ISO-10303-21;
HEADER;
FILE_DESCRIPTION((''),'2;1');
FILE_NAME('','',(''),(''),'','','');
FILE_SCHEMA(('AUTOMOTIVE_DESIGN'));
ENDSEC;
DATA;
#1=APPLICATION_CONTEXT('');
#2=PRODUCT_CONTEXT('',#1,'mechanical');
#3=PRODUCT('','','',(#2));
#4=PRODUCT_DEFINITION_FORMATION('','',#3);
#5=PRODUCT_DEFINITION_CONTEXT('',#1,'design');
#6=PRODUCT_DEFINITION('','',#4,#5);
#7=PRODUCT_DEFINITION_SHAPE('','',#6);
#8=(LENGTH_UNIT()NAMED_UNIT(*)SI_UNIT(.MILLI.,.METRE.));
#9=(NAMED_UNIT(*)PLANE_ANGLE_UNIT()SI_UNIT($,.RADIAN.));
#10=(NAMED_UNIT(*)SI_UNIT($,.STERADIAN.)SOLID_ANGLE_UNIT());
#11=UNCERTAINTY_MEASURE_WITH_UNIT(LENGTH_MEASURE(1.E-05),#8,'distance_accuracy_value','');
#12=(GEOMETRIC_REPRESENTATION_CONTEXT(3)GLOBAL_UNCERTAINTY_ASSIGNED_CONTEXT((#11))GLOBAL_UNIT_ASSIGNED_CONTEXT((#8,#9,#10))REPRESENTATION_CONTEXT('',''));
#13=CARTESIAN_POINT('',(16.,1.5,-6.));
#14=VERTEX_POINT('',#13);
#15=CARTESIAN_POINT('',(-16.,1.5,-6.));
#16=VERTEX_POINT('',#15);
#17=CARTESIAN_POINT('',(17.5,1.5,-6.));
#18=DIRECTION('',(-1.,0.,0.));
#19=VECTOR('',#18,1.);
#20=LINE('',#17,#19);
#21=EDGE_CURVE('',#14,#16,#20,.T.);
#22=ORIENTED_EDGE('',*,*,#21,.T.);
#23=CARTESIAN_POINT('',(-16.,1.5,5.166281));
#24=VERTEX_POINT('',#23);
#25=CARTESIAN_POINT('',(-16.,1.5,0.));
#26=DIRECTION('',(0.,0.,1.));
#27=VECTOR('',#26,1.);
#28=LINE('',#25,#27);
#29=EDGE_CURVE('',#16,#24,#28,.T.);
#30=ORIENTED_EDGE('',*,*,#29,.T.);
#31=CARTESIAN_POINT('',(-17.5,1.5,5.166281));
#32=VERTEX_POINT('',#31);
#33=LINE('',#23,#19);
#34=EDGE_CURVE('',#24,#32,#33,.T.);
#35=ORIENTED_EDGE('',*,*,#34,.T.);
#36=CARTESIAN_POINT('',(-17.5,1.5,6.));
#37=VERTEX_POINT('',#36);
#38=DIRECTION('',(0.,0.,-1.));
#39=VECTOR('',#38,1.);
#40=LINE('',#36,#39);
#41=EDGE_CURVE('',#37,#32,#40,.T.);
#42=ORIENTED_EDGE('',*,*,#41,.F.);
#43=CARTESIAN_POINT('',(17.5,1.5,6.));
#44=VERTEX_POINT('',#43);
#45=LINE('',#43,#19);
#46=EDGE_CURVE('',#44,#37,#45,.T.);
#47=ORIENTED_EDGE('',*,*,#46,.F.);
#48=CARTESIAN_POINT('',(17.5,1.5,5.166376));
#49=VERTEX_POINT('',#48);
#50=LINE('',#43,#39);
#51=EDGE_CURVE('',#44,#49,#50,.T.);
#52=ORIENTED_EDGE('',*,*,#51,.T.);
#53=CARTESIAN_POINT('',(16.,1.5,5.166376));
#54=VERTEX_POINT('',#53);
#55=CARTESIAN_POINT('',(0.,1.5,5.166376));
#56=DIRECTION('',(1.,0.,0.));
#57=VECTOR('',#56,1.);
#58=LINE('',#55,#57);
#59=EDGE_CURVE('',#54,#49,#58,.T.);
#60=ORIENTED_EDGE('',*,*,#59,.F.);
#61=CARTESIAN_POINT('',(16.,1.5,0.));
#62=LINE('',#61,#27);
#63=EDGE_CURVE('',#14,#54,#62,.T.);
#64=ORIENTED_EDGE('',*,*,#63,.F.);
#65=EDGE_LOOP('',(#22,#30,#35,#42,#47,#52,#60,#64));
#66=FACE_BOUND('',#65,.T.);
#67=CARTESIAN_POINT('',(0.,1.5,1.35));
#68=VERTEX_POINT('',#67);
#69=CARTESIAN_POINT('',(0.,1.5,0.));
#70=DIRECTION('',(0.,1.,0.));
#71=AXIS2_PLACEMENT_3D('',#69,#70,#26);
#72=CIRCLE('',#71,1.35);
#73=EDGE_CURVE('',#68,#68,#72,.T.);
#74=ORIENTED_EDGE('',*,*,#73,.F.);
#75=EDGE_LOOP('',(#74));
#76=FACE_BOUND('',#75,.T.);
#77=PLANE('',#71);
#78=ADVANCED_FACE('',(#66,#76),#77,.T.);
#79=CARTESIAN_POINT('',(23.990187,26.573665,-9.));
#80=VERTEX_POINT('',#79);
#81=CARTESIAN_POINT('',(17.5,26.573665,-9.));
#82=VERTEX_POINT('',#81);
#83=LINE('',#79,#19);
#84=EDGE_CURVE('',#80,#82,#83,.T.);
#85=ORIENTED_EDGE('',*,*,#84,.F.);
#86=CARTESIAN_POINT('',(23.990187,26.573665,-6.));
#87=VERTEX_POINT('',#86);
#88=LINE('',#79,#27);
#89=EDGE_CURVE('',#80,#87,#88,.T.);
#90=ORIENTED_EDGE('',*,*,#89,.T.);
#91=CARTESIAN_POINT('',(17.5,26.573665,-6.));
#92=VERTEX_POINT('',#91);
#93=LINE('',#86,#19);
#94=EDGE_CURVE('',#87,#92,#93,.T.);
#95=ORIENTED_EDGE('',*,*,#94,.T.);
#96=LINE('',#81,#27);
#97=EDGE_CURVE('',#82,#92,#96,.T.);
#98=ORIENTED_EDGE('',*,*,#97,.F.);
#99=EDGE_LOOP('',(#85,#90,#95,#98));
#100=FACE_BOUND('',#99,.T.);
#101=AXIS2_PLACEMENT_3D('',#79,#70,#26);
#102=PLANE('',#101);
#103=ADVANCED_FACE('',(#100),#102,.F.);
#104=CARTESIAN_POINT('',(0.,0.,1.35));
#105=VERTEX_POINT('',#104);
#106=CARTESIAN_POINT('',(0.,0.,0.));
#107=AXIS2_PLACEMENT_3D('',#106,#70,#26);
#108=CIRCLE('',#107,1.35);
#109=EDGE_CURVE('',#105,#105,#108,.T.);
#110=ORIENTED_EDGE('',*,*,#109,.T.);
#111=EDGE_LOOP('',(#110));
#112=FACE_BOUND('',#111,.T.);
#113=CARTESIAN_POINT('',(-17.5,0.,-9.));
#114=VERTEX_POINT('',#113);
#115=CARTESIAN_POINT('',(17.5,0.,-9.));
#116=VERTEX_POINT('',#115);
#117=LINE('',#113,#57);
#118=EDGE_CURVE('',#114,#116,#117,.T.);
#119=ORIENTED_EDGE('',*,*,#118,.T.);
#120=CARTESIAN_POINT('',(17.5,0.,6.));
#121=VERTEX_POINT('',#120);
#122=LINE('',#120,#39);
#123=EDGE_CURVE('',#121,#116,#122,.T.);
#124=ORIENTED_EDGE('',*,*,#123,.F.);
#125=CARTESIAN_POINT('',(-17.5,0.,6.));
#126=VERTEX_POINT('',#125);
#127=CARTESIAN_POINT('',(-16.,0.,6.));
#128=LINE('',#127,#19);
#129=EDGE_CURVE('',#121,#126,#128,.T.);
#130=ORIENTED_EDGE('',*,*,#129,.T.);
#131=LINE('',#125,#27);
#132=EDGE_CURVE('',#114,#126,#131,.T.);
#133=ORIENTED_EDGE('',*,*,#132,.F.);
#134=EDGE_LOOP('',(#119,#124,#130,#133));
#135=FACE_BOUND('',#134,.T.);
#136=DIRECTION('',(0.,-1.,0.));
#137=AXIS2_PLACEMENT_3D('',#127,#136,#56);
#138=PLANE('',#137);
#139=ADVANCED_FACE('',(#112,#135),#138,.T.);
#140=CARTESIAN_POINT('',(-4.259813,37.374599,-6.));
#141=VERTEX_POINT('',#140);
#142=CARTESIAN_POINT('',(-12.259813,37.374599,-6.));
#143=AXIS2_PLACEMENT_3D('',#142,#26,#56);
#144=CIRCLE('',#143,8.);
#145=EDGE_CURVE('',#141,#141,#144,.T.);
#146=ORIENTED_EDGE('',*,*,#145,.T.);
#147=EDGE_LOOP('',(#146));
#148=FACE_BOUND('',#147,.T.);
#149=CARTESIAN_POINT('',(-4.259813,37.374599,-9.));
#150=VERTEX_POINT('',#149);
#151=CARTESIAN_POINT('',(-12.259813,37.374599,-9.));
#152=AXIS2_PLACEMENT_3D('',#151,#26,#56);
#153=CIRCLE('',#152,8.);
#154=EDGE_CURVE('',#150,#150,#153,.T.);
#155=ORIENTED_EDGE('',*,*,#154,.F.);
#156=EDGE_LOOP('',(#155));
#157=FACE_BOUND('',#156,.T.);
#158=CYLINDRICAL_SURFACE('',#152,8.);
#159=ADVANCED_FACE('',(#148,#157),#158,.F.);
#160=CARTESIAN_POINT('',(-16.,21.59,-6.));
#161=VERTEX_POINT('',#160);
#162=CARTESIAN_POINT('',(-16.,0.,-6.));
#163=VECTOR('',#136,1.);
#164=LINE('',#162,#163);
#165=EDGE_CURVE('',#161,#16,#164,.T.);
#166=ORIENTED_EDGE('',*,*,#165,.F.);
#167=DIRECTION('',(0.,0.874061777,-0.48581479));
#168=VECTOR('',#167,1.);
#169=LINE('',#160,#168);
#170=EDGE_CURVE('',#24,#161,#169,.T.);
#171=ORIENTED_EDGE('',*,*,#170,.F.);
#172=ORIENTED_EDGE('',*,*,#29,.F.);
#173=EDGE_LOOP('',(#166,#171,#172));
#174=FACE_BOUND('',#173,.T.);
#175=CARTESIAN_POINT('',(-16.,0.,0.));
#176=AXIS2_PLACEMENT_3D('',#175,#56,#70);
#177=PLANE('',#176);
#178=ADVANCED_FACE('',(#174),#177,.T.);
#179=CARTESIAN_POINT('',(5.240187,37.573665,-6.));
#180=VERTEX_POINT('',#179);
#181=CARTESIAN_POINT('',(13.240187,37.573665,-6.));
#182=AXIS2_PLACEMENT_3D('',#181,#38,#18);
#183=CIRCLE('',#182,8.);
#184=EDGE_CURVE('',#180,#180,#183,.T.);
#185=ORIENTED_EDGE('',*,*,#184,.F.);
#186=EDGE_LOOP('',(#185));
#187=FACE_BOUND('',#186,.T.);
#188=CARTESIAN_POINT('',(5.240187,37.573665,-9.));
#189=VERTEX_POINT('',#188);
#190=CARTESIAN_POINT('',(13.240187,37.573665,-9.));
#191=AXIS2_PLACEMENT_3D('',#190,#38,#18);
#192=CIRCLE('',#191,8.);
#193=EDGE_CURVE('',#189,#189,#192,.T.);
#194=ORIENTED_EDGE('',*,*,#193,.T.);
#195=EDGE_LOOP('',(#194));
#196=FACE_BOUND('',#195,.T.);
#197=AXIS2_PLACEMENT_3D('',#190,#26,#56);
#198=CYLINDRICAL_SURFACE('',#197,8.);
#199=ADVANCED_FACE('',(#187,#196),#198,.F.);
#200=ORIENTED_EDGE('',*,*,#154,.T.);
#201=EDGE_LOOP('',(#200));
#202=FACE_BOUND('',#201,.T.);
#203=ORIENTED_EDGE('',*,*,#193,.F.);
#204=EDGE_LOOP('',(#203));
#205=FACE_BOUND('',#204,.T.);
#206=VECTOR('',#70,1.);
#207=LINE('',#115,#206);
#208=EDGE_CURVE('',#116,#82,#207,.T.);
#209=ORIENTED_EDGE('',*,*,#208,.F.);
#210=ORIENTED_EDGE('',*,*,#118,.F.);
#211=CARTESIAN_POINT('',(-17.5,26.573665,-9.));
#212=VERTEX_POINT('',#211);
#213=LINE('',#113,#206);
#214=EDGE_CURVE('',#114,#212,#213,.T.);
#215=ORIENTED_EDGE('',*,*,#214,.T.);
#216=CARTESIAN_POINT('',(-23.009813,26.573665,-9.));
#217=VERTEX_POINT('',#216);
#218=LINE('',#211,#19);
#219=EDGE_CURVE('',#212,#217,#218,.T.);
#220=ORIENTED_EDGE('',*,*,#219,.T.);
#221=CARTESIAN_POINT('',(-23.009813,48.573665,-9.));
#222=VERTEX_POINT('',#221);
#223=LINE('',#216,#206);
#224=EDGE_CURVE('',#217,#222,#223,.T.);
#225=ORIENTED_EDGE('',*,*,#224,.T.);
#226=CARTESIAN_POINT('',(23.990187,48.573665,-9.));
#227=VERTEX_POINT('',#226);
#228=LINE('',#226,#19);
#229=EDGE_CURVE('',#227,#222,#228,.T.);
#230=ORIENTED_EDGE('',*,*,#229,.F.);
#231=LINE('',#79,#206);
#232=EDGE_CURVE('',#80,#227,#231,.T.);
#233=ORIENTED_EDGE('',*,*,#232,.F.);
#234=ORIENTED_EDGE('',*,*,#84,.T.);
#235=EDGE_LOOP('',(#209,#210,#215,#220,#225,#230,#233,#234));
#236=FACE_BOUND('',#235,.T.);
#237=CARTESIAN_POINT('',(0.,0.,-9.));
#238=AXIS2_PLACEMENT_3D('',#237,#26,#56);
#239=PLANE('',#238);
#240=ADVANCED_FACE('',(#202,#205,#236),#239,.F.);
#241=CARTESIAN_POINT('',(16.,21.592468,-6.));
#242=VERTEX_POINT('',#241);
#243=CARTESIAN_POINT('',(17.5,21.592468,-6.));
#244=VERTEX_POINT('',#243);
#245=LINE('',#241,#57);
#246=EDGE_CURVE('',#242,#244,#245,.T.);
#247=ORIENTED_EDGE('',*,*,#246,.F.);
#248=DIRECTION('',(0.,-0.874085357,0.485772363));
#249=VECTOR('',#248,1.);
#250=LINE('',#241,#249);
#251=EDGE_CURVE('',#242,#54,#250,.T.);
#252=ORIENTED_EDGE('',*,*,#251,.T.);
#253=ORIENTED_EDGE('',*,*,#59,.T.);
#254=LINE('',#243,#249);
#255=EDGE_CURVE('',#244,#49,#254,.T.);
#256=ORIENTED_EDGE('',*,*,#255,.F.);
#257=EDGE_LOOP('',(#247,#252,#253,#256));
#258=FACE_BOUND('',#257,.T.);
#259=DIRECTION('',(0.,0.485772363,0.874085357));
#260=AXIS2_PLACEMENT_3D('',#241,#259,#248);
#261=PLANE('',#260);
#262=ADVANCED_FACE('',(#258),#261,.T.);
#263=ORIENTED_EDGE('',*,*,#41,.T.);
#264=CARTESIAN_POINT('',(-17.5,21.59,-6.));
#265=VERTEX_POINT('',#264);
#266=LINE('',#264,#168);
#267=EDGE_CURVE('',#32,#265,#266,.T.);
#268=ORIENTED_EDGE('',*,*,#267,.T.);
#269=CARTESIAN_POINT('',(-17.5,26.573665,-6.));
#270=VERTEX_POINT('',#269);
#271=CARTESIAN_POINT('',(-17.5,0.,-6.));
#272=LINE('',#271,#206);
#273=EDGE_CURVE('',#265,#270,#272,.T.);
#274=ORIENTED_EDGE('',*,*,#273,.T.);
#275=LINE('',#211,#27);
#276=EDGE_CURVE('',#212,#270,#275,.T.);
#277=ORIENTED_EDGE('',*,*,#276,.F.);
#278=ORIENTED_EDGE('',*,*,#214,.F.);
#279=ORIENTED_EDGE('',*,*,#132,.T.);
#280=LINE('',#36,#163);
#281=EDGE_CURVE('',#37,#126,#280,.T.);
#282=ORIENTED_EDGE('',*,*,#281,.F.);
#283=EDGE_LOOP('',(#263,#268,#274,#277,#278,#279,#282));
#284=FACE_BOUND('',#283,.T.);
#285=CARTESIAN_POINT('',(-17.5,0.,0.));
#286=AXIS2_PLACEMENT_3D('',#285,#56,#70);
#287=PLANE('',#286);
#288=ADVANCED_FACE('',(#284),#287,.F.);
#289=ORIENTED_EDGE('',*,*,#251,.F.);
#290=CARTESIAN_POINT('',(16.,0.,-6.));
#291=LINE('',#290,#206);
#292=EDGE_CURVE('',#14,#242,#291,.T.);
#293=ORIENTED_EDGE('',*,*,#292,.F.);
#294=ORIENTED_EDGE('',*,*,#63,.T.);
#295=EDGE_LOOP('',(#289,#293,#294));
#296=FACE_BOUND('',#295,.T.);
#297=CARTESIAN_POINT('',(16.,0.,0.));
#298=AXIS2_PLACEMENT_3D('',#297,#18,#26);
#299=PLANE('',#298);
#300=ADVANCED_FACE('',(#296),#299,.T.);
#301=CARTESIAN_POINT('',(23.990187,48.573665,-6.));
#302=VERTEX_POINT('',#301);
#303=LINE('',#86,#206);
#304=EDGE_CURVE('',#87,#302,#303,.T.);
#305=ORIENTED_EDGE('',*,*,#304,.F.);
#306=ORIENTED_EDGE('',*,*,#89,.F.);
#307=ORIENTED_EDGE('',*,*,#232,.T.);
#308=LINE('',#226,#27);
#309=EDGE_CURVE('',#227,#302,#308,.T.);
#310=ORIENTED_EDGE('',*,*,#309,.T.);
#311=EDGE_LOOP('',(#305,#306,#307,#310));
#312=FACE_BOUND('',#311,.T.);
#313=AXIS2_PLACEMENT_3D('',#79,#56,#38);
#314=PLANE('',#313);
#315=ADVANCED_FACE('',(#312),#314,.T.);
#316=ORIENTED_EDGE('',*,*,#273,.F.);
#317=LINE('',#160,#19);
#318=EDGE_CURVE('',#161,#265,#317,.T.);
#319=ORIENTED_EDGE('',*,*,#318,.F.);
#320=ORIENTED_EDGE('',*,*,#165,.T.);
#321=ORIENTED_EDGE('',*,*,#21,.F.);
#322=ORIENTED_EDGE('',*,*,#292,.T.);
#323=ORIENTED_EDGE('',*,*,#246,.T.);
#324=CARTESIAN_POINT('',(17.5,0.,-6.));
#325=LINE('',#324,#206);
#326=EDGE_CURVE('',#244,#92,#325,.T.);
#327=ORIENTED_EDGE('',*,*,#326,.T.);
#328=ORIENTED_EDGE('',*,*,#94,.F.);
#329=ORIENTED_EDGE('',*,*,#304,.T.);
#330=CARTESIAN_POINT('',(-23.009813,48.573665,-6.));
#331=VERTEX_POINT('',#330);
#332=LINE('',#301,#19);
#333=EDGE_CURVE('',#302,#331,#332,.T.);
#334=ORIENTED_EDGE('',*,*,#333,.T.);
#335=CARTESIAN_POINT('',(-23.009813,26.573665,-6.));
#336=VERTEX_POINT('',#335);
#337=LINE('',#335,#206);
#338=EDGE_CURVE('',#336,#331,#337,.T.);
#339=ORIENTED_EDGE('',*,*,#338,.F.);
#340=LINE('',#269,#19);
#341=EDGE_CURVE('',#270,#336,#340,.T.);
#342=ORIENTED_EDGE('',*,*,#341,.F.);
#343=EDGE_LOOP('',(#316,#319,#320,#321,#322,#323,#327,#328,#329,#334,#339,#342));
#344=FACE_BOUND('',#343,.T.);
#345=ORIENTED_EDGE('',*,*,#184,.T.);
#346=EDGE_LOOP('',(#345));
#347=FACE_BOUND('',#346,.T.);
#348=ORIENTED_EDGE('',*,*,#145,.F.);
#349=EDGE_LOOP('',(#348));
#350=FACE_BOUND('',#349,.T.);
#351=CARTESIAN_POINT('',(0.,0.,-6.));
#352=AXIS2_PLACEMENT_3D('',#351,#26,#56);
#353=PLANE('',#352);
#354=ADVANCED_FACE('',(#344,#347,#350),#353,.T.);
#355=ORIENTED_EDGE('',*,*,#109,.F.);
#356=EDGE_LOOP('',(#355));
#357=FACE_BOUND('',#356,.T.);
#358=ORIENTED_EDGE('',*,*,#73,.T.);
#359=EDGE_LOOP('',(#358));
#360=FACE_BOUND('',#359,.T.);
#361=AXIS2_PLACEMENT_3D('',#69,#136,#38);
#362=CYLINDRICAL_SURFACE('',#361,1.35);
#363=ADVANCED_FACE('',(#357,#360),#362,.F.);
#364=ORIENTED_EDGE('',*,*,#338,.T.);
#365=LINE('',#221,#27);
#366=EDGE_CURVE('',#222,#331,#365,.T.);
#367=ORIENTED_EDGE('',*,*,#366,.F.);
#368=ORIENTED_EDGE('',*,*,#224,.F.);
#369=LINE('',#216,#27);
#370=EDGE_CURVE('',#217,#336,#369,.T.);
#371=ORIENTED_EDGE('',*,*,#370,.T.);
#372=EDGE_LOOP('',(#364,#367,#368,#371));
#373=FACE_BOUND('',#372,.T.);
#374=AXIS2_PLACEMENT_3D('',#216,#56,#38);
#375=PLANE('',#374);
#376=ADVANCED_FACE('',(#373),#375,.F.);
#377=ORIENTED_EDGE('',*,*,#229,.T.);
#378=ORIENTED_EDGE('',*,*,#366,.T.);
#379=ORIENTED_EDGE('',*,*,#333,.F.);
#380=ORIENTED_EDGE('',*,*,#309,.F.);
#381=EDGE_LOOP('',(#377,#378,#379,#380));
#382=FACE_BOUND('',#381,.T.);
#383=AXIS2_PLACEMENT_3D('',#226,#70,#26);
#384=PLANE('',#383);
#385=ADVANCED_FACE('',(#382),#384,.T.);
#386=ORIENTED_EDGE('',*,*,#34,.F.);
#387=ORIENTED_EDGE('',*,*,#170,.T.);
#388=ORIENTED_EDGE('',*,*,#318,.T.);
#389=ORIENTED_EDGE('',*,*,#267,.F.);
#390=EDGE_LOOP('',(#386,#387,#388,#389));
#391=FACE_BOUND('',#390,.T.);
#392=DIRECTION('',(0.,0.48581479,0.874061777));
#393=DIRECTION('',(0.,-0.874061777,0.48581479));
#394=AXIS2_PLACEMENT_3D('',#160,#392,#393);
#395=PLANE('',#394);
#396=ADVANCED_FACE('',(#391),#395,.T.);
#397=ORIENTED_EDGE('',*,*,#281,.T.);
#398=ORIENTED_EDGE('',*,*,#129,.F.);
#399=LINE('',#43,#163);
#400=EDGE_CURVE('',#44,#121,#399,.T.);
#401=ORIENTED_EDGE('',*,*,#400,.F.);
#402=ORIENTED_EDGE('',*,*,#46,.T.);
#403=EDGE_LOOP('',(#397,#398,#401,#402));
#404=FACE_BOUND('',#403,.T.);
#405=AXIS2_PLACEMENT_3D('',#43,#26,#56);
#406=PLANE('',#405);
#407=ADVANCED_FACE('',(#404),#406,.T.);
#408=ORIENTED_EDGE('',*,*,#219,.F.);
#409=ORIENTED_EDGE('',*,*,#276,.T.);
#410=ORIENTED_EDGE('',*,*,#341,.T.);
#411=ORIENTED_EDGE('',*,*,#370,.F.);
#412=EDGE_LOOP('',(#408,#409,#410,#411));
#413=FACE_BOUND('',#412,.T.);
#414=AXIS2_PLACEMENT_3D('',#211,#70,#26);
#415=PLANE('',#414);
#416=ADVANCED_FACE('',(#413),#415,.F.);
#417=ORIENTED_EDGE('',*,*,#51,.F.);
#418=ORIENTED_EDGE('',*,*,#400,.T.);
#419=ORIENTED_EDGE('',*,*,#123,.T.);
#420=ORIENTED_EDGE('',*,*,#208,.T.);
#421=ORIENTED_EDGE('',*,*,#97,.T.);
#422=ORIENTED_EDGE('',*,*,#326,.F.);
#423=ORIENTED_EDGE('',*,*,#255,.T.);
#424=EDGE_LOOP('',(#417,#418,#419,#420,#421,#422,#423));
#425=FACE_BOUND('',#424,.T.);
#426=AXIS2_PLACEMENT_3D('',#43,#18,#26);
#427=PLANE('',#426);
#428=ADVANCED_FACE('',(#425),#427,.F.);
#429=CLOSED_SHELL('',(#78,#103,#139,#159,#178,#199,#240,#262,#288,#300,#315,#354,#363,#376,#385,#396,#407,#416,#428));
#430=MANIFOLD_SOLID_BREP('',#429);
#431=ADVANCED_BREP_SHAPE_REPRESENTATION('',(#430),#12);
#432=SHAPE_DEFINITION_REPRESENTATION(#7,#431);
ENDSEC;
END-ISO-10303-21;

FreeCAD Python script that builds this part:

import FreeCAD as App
import Part
import Sketcher
Q = App.Units.Quantity


def add_polygon(sketch, points):
    """Adds a closed chain of lines whose ends are joined by coincident constraints."""
    first, n = sketch.GeometryCount, len(points)
    for a, b in zip(points, points[1:] + points[:1]):
        sketch.addGeometry(Part.LineSegment(App.Vector(*a, 0), App.Vector(*b, 0)), False)
    for i in range(n):
        sketch.addConstraint(Sketcher.Constraint("Coincident", first + i, 2, first + (i + 1) % n, 1))

doc = App.newDocument("Part")
body = doc.addObject("PartDesign::Body", "Body")

# Sketch on YZ plane
sketch1 = body.newObject("Sketcher::SketchObject", "Sketch")
sketch1.AttachmentSupport = (doc.getObject("YZ_Plane"), [""])
sketch1.MapMode = "FlatFace"
sketch1.AttachmentOffset = App.Placement(App.Vector(0, 0, -17.5), App.Rotation())
add_polygon(sketch1, [(0, 6), (21.59, -6), (0, -6)])  # lines 0-2
sketch1.addConstraint([
    Sketcher.Constraint("Horizontal", 1),
    Sketcher.Constraint("Vertical", 2),
    Sketcher.Constraint("Symmetric", 1, 2, 2, 2, -1, 1),
    Sketcher.Constraint("DistanceY", 2, 1, 2, 2, Q("12 mm")),
    Sketcher.Constraint("DistanceX", 1, 2, 1, 1, Q("21.59 mm")),
])
pad1 = body.newObject("PartDesign::Pad", "Pad")
pad1.Profile = sketch1
pad1.Length = 1.5
body2 = doc.addObject("PartDesign::Body", "Body001")

# Sketch on YZ plane
sketch2 = body2.newObject("Sketcher::SketchObject", "Sketch001")
sketch2.AttachmentSupport = (doc.getObject("YZ_Plane001"), [""])
sketch2.MapMode = "FlatFace"
sketch2.AttachmentOffset = App.Placement(App.Vector(0, 0, 17.5), App.Rotation())
add_polygon(sketch2, [(21.592468, -6), (0, 6), (0, -6)])  # lines 0-2
sketch2.addConstraint([
    Sketcher.Constraint("Vertical", 1),
    Sketcher.Constraint("Horizontal", 2),
    Sketcher.Constraint("Symmetric", 0, 2, 1, 2, -1, 1),
    Sketcher.Constraint("DistanceY", 1, 2, 1, 1, Q("12 mm")),
    Sketcher.Constraint("DistanceX", 2, 1, 2, 2, Q("21.592468 mm")),
])
pad2 = body2.newObject("PartDesign::Pad", "Pad001")
pad2.Profile = sketch2
pad2.Length = 1.5
pad2.Reversed = True
body.AllowCompound = True
doc.recompute()

boolean = body.newObject("PartDesign::Boolean", "Boolean")
boolean.Type = "Fuse"
boolean.addObjects([body2])

# Sketch on XZ plane
sketch3 = body.newObject("Sketcher::SketchObject", "Sketch002")
sketch3.AttachmentSupport = (doc.getObject("XZ_Plane"), [""])
sketch3.MapMode = "FlatFace"
add_polygon(sketch3, [(-17.5, -6), (-17.5, 6), (17.5, 6), (17.5, -6)])  # lines 0-3
sketch3.addGeometry(Part.Circle(App.Vector(0, 0, 0), App.Vector(0, 0, 1), 1.35), False)  # 4
sketch3.addConstraint([
    Sketcher.Constraint("Vertical", 0),
    Sketcher.Constraint("Horizontal", 1),
    Sketcher.Constraint("Vertical", 2),
    Sketcher.Constraint("Horizontal", 3),
    Sketcher.Constraint("Coincident", 4, 3, -1, 1),
    Sketcher.Constraint("Symmetric", 0, 2, 2, 2, -1, 1),
    Sketcher.Constraint("Diameter", 4, Q("2.7 mm")),
    Sketcher.Constraint("DistanceX", 1, 1, 1, 2, Q("35 mm")),
    Sketcher.Constraint("DistanceY", 0, 1, 0, 2, Q("12 mm")),
])
pad3 = body.newObject("PartDesign::Pad", "Pad002")
pad3.Profile = sketch3
pad3.Length = 1.5
pad3.Reversed = True

# Sketch on XY plane
sketch4 = body.newObject("Sketcher::SketchObject", "Sketch003")
sketch4.AttachmentSupport = (doc.getObject("XY_Plane"), [""])
sketch4.MapMode = "FlatFace"
sketch4.AttachmentOffset = App.Placement(App.Vector(0, 0, -6), App.Rotation())
add_polygon(sketch4, [(17.5, 0), (-17.5, 0), (-17.5, 26.573665), (-23.009813, 26.573665), (-23.009813, 48.573665), (23.990187, 48.573665), (23.990187, 26.573665), (17.5, 26.573665)])  # lines 0-7
sketch4.addGeometry(Part.Circle(App.Vector(-12.259813, 37.374599, 0), App.Vector(0, 0, 1), 8), False)  # 8
sketch4.addGeometry(Part.Circle(App.Vector(13.240187, 37.573665, 0), App.Vector(0, 0, 1), 8), False)  # 9
sketch4.addConstraint([
    Sketcher.Constraint("Horizontal", 0),
    Sketcher.Constraint("Vertical", 1),
    Sketcher.Constraint("Horizontal", 2),
    Sketcher.Constraint("Vertical", 3),
    Sketcher.Constraint("Horizontal", 4),
    Sketcher.Constraint("Vertical", 5),
    Sketcher.Constraint("Horizontal", 6),
    Sketcher.Constraint("Vertical", 7),
    Sketcher.Constraint("Equal", 8, 9),
    Sketcher.Constraint("Symmetric", 0, 2, 7, 2, -1, 1),
    Sketcher.Constraint("Horizontal", 2, 2, 5, 2),
    Sketcher.Constraint("Diameter", 8, Q("16 mm")),
    Sketcher.Constraint("DistanceX", 0, 2, 0, 1, Q("35 mm")),
    Sketcher.Constraint("DistanceX", 4, 1, 4, 2, Q("47 mm")),
    Sketcher.Constraint("DistanceY", 3, 1, 3, 2, Q("22 mm")),
    Sketcher.Constraint("DistanceY", 1, 2, 9, 3, Q("11 mm")),
    Sketcher.Constraint("DistanceX", 8, 3, 9, 3, Q("25.5 mm")),
    Sketcher.Constraint("DistanceX", 2, 2, 8, 3, Q("10.75 mm")),
    Sketcher.Constraint("DistanceY", -1, 1, 8, 3, Q("37.374599 mm")),
    Sketcher.Constraint("DistanceX", 2, 2, 2, 1, Q("5.509813 mm")),
    Sketcher.Constraint("DistanceY", 1, 1, 1, 2, Q("26.573665 mm")),
])
pad4 = body.newObject("PartDesign::Pad", "Pad003")
pad4.Profile = sketch4
pad4.Length = 3
pad4.Reversed = True

doc.recompute()
